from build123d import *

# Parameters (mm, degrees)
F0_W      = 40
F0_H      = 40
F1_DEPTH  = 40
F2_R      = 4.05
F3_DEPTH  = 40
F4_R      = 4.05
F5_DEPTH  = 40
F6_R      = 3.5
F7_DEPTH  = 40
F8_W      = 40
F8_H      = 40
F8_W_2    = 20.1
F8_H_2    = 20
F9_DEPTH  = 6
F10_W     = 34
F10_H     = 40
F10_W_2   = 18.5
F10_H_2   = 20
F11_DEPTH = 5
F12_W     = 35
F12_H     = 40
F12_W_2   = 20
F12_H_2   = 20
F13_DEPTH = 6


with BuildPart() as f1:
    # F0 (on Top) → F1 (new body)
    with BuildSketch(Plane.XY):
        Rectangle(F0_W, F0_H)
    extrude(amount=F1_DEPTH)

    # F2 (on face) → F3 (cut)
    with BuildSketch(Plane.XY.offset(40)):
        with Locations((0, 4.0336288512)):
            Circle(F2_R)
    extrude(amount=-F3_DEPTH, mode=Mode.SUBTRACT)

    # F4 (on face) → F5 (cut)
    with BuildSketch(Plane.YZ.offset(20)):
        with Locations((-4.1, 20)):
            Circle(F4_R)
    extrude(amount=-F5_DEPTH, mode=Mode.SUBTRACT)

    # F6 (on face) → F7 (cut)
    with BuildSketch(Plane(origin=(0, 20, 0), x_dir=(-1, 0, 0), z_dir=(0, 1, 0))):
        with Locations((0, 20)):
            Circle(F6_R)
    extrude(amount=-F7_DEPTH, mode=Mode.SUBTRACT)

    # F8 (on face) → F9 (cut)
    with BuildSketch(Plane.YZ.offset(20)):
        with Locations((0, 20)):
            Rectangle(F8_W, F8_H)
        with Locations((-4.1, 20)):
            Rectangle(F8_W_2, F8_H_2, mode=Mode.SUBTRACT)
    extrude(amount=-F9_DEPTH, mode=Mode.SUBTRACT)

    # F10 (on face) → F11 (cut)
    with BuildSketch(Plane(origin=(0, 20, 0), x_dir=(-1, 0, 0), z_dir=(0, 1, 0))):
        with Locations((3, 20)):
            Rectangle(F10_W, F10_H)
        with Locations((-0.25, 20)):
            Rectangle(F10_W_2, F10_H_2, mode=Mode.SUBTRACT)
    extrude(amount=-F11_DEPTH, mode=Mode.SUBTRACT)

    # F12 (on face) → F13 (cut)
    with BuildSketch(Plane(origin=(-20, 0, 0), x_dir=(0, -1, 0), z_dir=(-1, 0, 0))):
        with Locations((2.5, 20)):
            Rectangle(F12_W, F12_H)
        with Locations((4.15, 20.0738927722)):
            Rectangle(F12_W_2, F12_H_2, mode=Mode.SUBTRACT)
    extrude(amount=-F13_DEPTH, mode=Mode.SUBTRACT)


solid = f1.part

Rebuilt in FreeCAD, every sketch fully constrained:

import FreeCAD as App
import Part
import Sketcher
from FreeCAD import Vector


def add_polygon(sketch, points):
    """Adds a closed chain of lines whose ends are joined by coincident constraints."""
    first, n = sketch.GeometryCount, len(points)
    for a, b in zip(points, points[1:] + points[:1]):
        sketch.addGeometry(Part.LineSegment(App.Vector(*a, 0), App.Vector(*b, 0)), False)
    for i in range(n):
        sketch.addConstraint(Sketcher.Constraint("Coincident", first + i, 2, first + (i + 1) % n, 1))

doc = App.newDocument("Part")
params = doc.addObject("Spreadsheet::Sheet", "Params")
for row, (alias, value) in enumerate([
    ("sketch1_width", "40 mm"),
    ("pad1_length", "40 mm"),
    ("sketch2_diameter", "8.1 mm"),
    ("pocket1_length", "40 mm"),
    ("sketch3_diameter", "8.1 mm"),
    ("pocket2_length", "40 mm"),
    ("sketch4_diameter", "7 mm"),
    ("pocket3_length", "40 mm"),
    ("sketch5_width", "40 mm"),
    ("sketch5_height", "20 mm"),
    ("sketch5_width2", "20.1 mm"),
    ("pocket4_length", "6 mm"),
    ("sketch6_width", "34 mm"),
    ("sketch6_height", "40 mm"),
    ("sketch6_height2", "20 mm"),
    ("sketch6_width2", "18.5 mm"),
    ("pocket5_length", "5 mm"),
    ("sketch7_width", "35 mm"),
    ("sketch7_width2", "20 mm"),
    ("sketch7_height", "40 mm"),
    ("pocket6_length", "6 mm"),
], start=1):
    params.set(f"A{row}", alias)
    params.set(f"B{row}", "=" + value)
    params.setAlias(f"B{row}", alias)

body = doc.addObject("PartDesign::Body", "Body")

# Sketch on XY plane
sketch1 = doc.addObject("Sketcher::SketchObject", "Sketch")
body.addObject(sketch1)
sketch1.AttachmentSupport = (doc.XY_Plane, [""])
sketch1.MapMode = "FlatFace"
add_polygon(sketch1, [(-20, 20), (-20, -20), (20, -20), (20, 20)])  # lines 0-3
sketch1.addConstraint([
    Sketcher.Constraint("Vertical", 0),
    Sketcher.Constraint("Horizontal", 1),
    Sketcher.Constraint("Vertical", 2),
    Sketcher.Constraint("Horizontal", 3),
    Sketcher.Constraint("Symmetric", 0, 2, 2, 2, -1, 1),
    Sketcher.Constraint("Equal", 3, 0),
    Sketcher.Constraint("DistanceX", 1, 1, 1, 2, 40.0),
])
sketch1.setExpression("Constraints[10]", "Params.sketch1_width")
pad1 = doc.addObject("PartDesign::Pad", "Pad")
body.addObject(pad1)
pad1.Profile = sketch1
pad1.setExpression("Length", "Params.pad1_length")

# Sketch on XY plane
sketch2 = doc.addObject("Sketcher::SketchObject", "Sketch001")
body.addObject(sketch2)
sketch2.AttachmentSupport = (doc.XY_Plane, [""])
sketch2.MapMode = "FlatFace"
sketch2.AttachmentOffset = App.Placement(Vector(0, 0, 40), App.Rotation())
sketch2.addGeometry(Part.Circle(Vector(0, 4, 0), Vector(0, 0, 1), 4), False)
sketch2.addConstraint([
    Sketcher.Constraint("PointOnObject", 0, 3, -2),
    Sketcher.Constraint("Diameter", 0, 8.1),
    Sketcher.Constraint("DistanceY", -1, 1, 0, 3, 4.033629),
])
sketch2.setExpression("Constraints[1]", "Params.sketch2_diameter")
pocket1 = doc.addObject("PartDesign::Pocket", "Pocket")
body.addObject(pocket1)
pocket1.Profile = sketch2
pocket1.setExpression("Length", "Params.pocket1_length")

# Sketch on YZ plane
sketch3 = doc.addObject("Sketcher::SketchObject", "Sketch002")
body.addObject(sketch3)
sketch3.AttachmentSupport = (doc.YZ_Plane, [""])
sketch3.MapMode = "FlatFace"
sketch3.AttachmentOffset = App.Placement(Vector(0, 0, 20), App.Rotation())
sketch3.addGeometry(Part.Circle(Vector(-4.1, 20, 0), Vector(0, 0, 1), 4), False)
sketch3.addConstraint([
    Sketcher.Constraint("Diameter", 0, 8.1),
    Sketcher.Constraint("DistanceY", -1, 1, 0, 3, 20.0),
    Sketcher.Constraint("DistanceX", 0, 3, -1, 1, 4.1),
])
sketch3.setExpression("Constraints[0]", "Params.sketch3_diameter")
pocket2 = doc.addObject("PartDesign::Pocket", "Pocket001")
body.addObject(pocket2)
pocket2.Profile = sketch3
pocket2.setExpression("Length", "Params.pocket2_length")

# Sketch on XZ plane
sketch4 = doc.addObject("Sketcher::SketchObject", "Sketch003")
body.addObject(sketch4)
sketch4.AttachmentSupport = (doc.XZ_Plane, [""])
sketch4.MapMode = "FlatFace"
sketch4.AttachmentOffset = App.Placement(Vector(0, 0, -20), App.Rotation())
sketch4.addGeometry(Part.Circle(Vector(0, 20, 0), Vector(0, 0, 1), 3.5), False)
sketch4.addConstraint([
    Sketcher.Constraint("PointOnObject", 0, 3, -2),
    Sketcher.Constraint("Diameter", 0, 7.0),
    Sketcher.Constraint("DistanceY", -1, 1, 0, 3, 20.0),
])
sketch4.setExpression("Constraints[1]", "Params.sketch4_diameter")
pocket3 = doc.addObject("PartDesign::Pocket", "Pocket002")
body.addObject(pocket3)
pocket3.Profile = sketch4
pocket3.setExpression("Length", "Params.pocket3_length")
pocket3.Reversed = True

# Sketch on YZ plane
sketch5 = doc.addObject("Sketcher::SketchObject", "Sketch004")
body.addObject(sketch5)
sketch5.AttachmentSupport = (doc.YZ_Plane, [""])
sketch5.MapMode = "FlatFace"
sketch5.AttachmentOffset = App.Placement(Vector(0, 0, 20), App.Rotation())
add_polygon(sketch5, [(-20, 40), (-20, 0), (20, 0), (20, 40)])  # lines 0-3
add_polygon(sketch5, [(6, 10), (-14, 10), (-14, 30), (6, 30)])  # lines 4-7
sketch5.addConstraint([
    Sketcher.Constraint("Vertical", 0),
    Sketcher.Constraint("Horizontal", 1),
    Sketcher.Constraint("Vertical", 2),
    Sketcher.Constraint("Horizontal", 3),
    Sketcher.Constraint("Horizontal", 4),
    Sketcher.Constraint("Vertical", 5),
    Sketcher.Constraint("Horizontal", 6),
    Sketcher.Constraint("Vertical", 7),
    Sketcher.Constraint("Symmetric", 0, 2, 1, 2, -1, 1),
    Sketcher.Constraint("Equal", 3, 0),
    Sketcher.Constraint("DistanceX", 1, 1, 1, 2, 40.0),
    Sketcher.Constraint("DistanceY", 5, 1, 5, 2, 20.0),
    Sketcher.Constraint("DistanceX", 4, 2, 4, 1, 20.1),
    Sketcher.Constraint("DistanceY", -1, 1, 4, 2, 10.0),
    Sketcher.Constraint("DistanceX", 4, 2, -1, 1, 14.15),
])
sketch5.setExpression("Constraints[18]", "Params.sketch5_width")
sketch5.setExpression("Constraints[19]", "Params.sketch5_height")
sketch5.setExpression("Constraints[20]", "Params.sketch5_width2")
pocket4 = doc.addObject("PartDesign::Pocket", "Pocket003")
body.addObject(pocket4)
pocket4.Profile = sketch5
pocket4.setExpression("Length", "Params.pocket4_length")

# Sketch on XZ plane
sketch6 = doc.addObject("Sketcher::SketchObject", "Sketch005")
body.addObject(sketch6)
sketch6.AttachmentSupport = (doc.XZ_Plane, [""])
sketch6.MapMode = "FlatFace"
sketch6.AttachmentOffset = App.Placement(Vector(0, 0, -20), App.Rotation())
add_polygon(sketch6, [(14, 40), (14, 0), (-20, 0), (-20, 40)])  # lines 0-3
add_polygon(sketch6, [(-9, 10), (10, 10), (10, 30), (-9, 30)])  # lines 4-7
sketch6.addConstraint([
    Sketcher.Constraint("Vertical", 0),
    Sketcher.Constraint("Horizontal", 1),
    Sketcher.Constraint("Vertical", 2),
    Sketcher.Constraint("Horizontal", 3),
    Sketcher.Constraint("Horizontal", 4),
    Sketcher.Constraint("Vertical", 5),
    Sketcher.Constraint("Horizontal", 6),
    Sketcher.Constraint("Vertical", 7),
    Sketcher.Constraint("PointOnObject", 0, 2, -1),
    Sketcher.Constraint("DistanceX", 1, 2, 1, 1, 34.0),
    Sketcher.Constraint("DistanceY", 0, 2, 0, 1, 40.0),
    Sketcher.Constraint("DistanceY", 5, 1, 5, 2, 20.0),
    Sketcher.Constraint("DistanceX", 4, 1, 4, 2, 18.5),
    Sketcher.Constraint("DistanceX", -1, 1, 0, 2, 14.0),
    Sketcher.Constraint("DistanceY", -1, 1, 4, 2, 10.0),
    Sketcher.Constraint("DistanceX", 6, 2, -1, 1, 9.0),
])
sketch6.setExpression("Constraints[17]", "Params.sketch6_width")
sketch6.setExpression("Constraints[18]", "Params.sketch6_height")
sketch6.setExpression("Constraints[19]", "Params.sketch6_height2")
sketch6.setExpression("Constraints[20]", "Params.sketch6_width2")
pocket5 = doc.addObject("PartDesign::Pocket", "Pocket004")
body.addObject(pocket5)
pocket5.Profile = sketch6
pocket5.setExpression("Length", "Params.pocket5_length")
pocket5.Reversed = True

# Sketch on YZ plane
sketch7 = doc.addObject("Sketcher::SketchObject", "Sketch006")
body.addObject(sketch7)
sketch7.AttachmentSupport = (doc.YZ_Plane, [""])
sketch7.MapMode = "FlatFace"
sketch7.AttachmentOffset = App.Placement(Vector(0, 0, -20), App.Rotation())
add_polygon(sketch7, [(15, 40), (15, 0), (-20, 0), (-20, 40)])  # lines 0-3
add_polygon(sketch7, [(-14, 10), (6, 10), (6, 30), (-14, 30)])  # lines 4-7
sketch7.addConstraint([
    Sketcher.Constraint("Vertical", 0),
    Sketcher.Constraint("Horizontal", 1),
    Sketcher.Constraint("Vertical", 2),
    Sketcher.Constraint("Horizontal", 3),
    Sketcher.Constraint("Horizontal", 4),
    Sketcher.Constraint("Vertical", 5),
    Sketcher.Constraint("Horizontal", 6),
    Sketcher.Constraint("Vertical", 7),
    Sketcher.Constraint("PointOnObject", 0, 2, -1),
    Sketcher.Constraint("Equal", 6, 5),
    Sketcher.Constraint("DistanceX", 1, 2, 1, 1, 35.0),
    Sketcher.Constraint("DistanceX", 4, 1, 4, 2, 20.0),
    Sketcher.Constraint("DistanceY", 0, 2, 0, 1, 40.0),
    Sketcher.Constraint("DistanceX", -1, 1, 0, 2, 15.0),
    Sketcher.Constraint("DistanceX", -1, 1, 4, 2, 5.85),
    Sketcher.Constraint("DistanceY", -1, 1, 4, 2, 10.073893),
])
sketch7.setExpression("Constraints[18]", "Params.sketch7_width")
sketch7.setExpression("Constraints[19]", "Params.sketch7_width2")
sketch7.setExpression("Constraints[20]", "Params.sketch7_height")
pocket6 = doc.addObject("PartDesign::Pocket", "Pocket005")
body.addObject(pocket6)
pocket6.Profile = sketch7
pocket6.setExpression("Length", "Params.pocket6_length")
pocket6.Reversed = True

doc.recompute()
